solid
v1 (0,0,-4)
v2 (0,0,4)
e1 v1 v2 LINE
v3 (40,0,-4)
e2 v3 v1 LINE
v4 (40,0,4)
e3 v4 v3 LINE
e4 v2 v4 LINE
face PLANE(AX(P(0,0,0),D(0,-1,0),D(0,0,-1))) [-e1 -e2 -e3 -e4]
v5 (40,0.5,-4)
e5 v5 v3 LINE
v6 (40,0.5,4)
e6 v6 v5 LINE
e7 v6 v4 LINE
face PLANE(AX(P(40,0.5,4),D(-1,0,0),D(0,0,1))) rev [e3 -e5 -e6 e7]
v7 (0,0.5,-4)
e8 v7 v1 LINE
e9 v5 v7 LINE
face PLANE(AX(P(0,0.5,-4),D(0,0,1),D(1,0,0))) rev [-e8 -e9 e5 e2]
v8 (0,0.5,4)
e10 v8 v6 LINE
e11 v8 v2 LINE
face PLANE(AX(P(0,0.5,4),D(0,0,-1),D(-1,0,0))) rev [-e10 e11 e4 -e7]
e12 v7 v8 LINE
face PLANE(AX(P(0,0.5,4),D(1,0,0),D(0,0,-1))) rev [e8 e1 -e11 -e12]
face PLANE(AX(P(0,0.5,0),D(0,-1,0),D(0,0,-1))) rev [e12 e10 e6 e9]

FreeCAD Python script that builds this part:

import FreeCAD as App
import Part
import Sketcher

V = App.Vector
Q = App.Units.Quantity


def add_polygon(sketch, points):
    """Adds a closed chain of lines whose ends are joined by coincident constraints."""
    first, n = sketch.GeometryCount, len(points)
    for a, b in zip(points, points[1:] + points[:1]):
        sketch.addGeometry(Part.LineSegment(App.Vector(*a, 0), App.Vector(*b, 0)), False)
    for i in range(n):
        sketch.addConstraint(Sketcher.Constraint("Coincident", first + i, 2, first + (i + 1) % n, 1))

doc = App.newDocument("Part")
params = doc.addObject("Spreadsheet::Sheet", "Params")
for row, (alias, value) in enumerate([
    ("sketch1_width", "40 mm"),
    ("sketch1_height", "8 mm"),
    ("pad1_length", "0.5 mm"),
], start=1):
    params.set(f"A{row}", alias)
    params.set(f"B{row}", "=" + value)
    params.setAlias(f"B{row}", alias)

body = doc.addObject("PartDesign::Body", "Body")

sketch1 = body.newObject("Sketcher::SketchObject", "Sketch")
sketch1.AttachmentSupport = (doc.getObject("XZ_Plane"), [""])
sketch1.MapMode = "FlatFace"
add_polygon(sketch1, [(0, -4), (0, 4), (40, 4), (40, -4)])
sketch1.addConstraint([
    Sketcher.Constraint("Vertical", 0),
    Sketcher.Constraint("Horizontal", 1),
    Sketcher.Constraint("Vertical", 2),
    Sketcher.Constraint("Horizontal", 3),
    Sketcher.Constraint("Symmetric", 0, 2, 3, 2, -1, 1),
    Sketcher.Constraint("DistanceX", 1, 1, 1, 2, Q("40 mm")),
    Sketcher.Constraint("DistanceY", 0, 1, 0, 2, Q("8 mm")),
])
sketch1.setExpression("Constraints[9]", "Params.sketch1_width")
sketch1.setExpression("Constraints[10]", "Params.sketch1_height")
pad1 = body.newObject("PartDesign::Pad", "Pad")
pad1.Profile = sketch1
pad1.setExpression("Length", "Params.pad1_length")
pad1.Reversed = True

doc.recompute()
